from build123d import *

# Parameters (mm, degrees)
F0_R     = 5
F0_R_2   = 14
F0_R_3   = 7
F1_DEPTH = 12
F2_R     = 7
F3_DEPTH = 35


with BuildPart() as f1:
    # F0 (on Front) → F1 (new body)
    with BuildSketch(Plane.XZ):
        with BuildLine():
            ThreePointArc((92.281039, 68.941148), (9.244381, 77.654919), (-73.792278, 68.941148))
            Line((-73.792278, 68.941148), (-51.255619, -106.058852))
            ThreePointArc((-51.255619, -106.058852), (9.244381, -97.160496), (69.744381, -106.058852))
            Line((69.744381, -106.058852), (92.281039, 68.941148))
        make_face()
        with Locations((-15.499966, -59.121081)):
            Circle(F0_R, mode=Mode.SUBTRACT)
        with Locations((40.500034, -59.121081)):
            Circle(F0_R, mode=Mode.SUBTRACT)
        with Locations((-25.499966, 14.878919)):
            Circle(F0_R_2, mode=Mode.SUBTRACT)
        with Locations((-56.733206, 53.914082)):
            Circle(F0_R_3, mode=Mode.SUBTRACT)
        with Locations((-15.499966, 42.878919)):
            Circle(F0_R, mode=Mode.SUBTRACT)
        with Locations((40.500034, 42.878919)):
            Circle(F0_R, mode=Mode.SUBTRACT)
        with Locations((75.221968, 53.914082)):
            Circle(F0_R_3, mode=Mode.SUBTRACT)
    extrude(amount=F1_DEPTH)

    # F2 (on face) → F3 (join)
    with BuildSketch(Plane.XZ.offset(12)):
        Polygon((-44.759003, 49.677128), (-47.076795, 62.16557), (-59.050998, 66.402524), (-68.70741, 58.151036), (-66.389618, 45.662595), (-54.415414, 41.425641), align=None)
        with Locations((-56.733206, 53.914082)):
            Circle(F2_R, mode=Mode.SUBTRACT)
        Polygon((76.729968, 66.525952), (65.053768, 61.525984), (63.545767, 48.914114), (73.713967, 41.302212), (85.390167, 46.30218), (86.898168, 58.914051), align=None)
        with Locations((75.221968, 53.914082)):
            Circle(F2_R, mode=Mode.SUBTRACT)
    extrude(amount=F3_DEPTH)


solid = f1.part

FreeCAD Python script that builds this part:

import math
import FreeCAD as App
import Part
import Sketcher
from FreeCAD import Vector
Q = App.Units.Quantity

doc = App.newDocument("Part")
params = doc.addObject("Spreadsheet::Sheet", "Params")
for row, (alias, value) in enumerate([
    ("sketch1_diameter", "10 mm"),
    ("sketch1_diameter2", "28 mm"),
    ("sketch1_diameter3", "14 mm"),
    ("pad1_length", "12 mm"),
    ("sketch2_diameter", "14 mm"),
    ("pad2_length", "35 mm"),
], start=1):
    params.set(f"A{row}", alias)
    params.set(f"B{row}", "=" + value)
    params.setAlias(f"B{row}", alias)

body = doc.addObject("PartDesign::Body", "Body")

# Sketch on XZ plane
sketch1 = body.newObject("Sketcher::SketchObject", "Sketch")
sketch1.AttachmentSupport = (doc.getObject("XZ_Plane"), [""])
sketch1.MapMode = "FlatFace"
sketch1.addGeometry(Part.ArcOfCircle(Part.Circle(Vector(9.244381, -322.345061, 0), Vector(0, 0, 1), 399.99998), math.radians(78.018746), math.radians(101.981254)), False)
sketch1.addGeometry(Part.LineSegment(Vector(-73.792278, 68.941148, 0), Vector(-51.255619, -106.058852, 0)), False)
sketch1.addGeometry(Part.ArcOfCircle(Part.Circle(Vector(9.244381, -307.279688, 0), Vector(0, 0, 1), 210.119192), math.radians(73.265823), math.radians(106.734177)), False)
sketch1.addGeometry(Part.LineSegment(Vector(69.744381, -106.058852, 0), Vector(92.281039, 68.941148, 0)), False)
sketch1.addGeometry(Part.Circle(Vector(-15.499966, -59.121081, 0), Vector(0, 0, 1), 5), False)
sketch1.addGeometry(Part.Circle(Vector(40.500034, -59.121081, 0), Vector(0, 0, 1), 5), False)
sketch1.addGeometry(Part.Circle(Vector(-25.499966, 14.878919, 0), Vector(0, 0, 1), 14), False)
sketch1.addGeometry(Part.Circle(Vector(-56.733206, 53.914082, 0), Vector(0, 0, 1), 7), False)
sketch1.addGeometry(Part.Circle(Vector(-15.499966, 42.878919, 0), Vector(0, 0, 1), 5), False)
sketch1.addGeometry(Part.Circle(Vector(40.500034, 42.878919, 0), Vector(0, 0, 1), 5), False)
sketch1.addGeometry(Part.Circle(Vector(75.221968, 53.914082, 0), Vector(0, 0, 1), 7), False)
sketch1.addConstraint(Sketcher.Constraint("Coincident", 0, 2, 1, 1))
sketch1.addConstraint(Sketcher.Constraint("Coincident", 1, 2, 2, 2))
sketch1.addConstraint(Sketcher.Constraint("Coincident", 2, 1, 3, 1))
sketch1.addConstraint(Sketcher.Constraint("Coincident", 3, 2, 0, 1))
sketch1.addConstraint(Sketcher.Constraint("Equal", 4, 5))
sketch1.addConstraint(Sketcher.Constraint("Equal", 5, 8))
sketch1.addConstraint(Sketcher.Constraint("Equal", 8, 9))
sketch1.addConstraint(Sketcher.Constraint("Equal", 7, 10))
sketch1.addConstraint(Sketcher.Constraint("Horizontal", 4, 3, 5, 3))
sketch1.addConstraint(Sketcher.Constraint("Horizontal", 8, 3, 9, 3))
sketch1.addConstraint(Sketcher.Constraint("Horizontal", 7, 3, 10, 3))
sketch1.addConstraint(Sketcher.Constraint("Horizontal", 1, 2, 2, 1))
sketch1.addConstraint(Sketcher.Constraint("Horizontal", 0, 2, 3, 2))
sketch1.addConstraint(Sketcher.Constraint("Vertical", 0, 3, 2, 3))
sketch1.addConstraint(Sketcher.Constraint("Vertical", 4, 3, 8, 3))
sketch1.addConstraint(Sketcher.Constraint("Vertical", 5, 3, 9, 3))
sketch1.addConstraint(Sketcher.Constraint("Diameter", 4, Q("10 mm")))
sketch1.addConstraint(Sketcher.Constraint("Diameter", 6, Q("28 mm")))
sketch1.addConstraint(Sketcher.Constraint("Diameter", 7, Q("14 mm")))
sketch1.addConstraint(Sketcher.Constraint("DistanceX", 4, 3, 5, 3, Q("56 mm")))
sketch1.addConstraint(Sketcher.Constraint("DistanceX", 6, 3, 4, 3, Q("10 mm")))
sketch1.addConstraint(Sketcher.Constraint("DistanceY", 4, 3, 6, 3, Q("74 mm")))
sketch1.addConstraint(Sketcher.Constraint("DistanceY", 6, 3, 8, 3, Q("28 mm")))
sketch1.addConstraint(Sketcher.Constraint("DistanceX", 1, 2, 2, 1, Q("121 mm")))
sketch1.addConstraint(Sketcher.Constraint("Radius", 0, Q("399.99998 mm")))
sketch1.addConstraint(Sketcher.Constraint("Radius", 2, Q("210.119192 mm")))
sketch1.addConstraint(Sketcher.Constraint("Distance", 1, Q("176.445178 mm")))
sketch1.addConstraint(Sketcher.Constraint("DistanceX", -1, 1, 0, 3, Q("9.244381 mm")))
sketch1.addConstraint(Sketcher.Constraint("DistanceY", 0, 3, -1, 1, Q("322.345061 mm")))
sketch1.addConstraint(Sketcher.Constraint("DistanceY", 4, 3, -1, 1, Q("59.121081 mm")))
sketch1.addConstraint(Sketcher.Constraint("DistanceX", -1, 1, 10, 3, Q("75.221968 mm")))
sketch1.addConstraint(Sketcher.Constraint("DistanceY", 1, 2, -1, 1, Q("106.058852 mm")))
sketch1.addConstraint(Sketcher.Constraint("DistanceX", 7, 3, 6, 3, Q("31.23324 mm")))
sketch1.addConstraint(Sketcher.Constraint("DistanceY", 2, 3, 7, 3, Q("361.19377 mm")))
sketch1.addConstraint(Sketcher.Constraint("DistanceX", 4, 3, -1, 1, Q("15.499966 mm")))
sketch1.setExpression("Constraints[16]", "Params.sketch1_diameter")
sketch1.setExpression("Constraints[17]", "Params.sketch1_diameter2")
sketch1.setExpression("Constraints[18]", "Params.sketch1_diameter3")
pad1 = body.newObject("PartDesign::Pad", "Pad")
pad1.Profile = sketch1
pad1.setExpression("Length", "Params.pad1_length")

# Sketch on XZ plane
sketch2 = body.newObject("Sketcher::SketchObject", "Sketch001")
sketch2.AttachmentSupport = (doc.getObject("XZ_Plane"), [""])
sketch2.MapMode = "FlatFace"
sketch2.AttachmentOffset = App.Placement(Vector(0, 0, 12), App.Rotation())
sketch2.addGeometry(Part.LineSegment(Vector(-44.759003, 49.677128, 0), Vector(-47.076795, 62.16557, 0)), False)
sketch2.addGeometry(Part.LineSegment(Vector(-47.076795, 62.16557, 0), Vector(-59.050998, 66.402524, 0)), False)
sketch2.addGeometry(Part.LineSegment(Vector(-59.050998, 66.402524, 0), Vector(-68.70741, 58.151036, 0)), False)
sketch2.addGeometry(Part.LineSegment(Vector(-68.70741, 58.151036, 0), Vector(-66.389618, 45.662595, 0)), False)
sketch2.addGeometry(Part.LineSegment(Vector(-66.389618, 45.662595, 0), Vector(-54.415414, 41.425641, 0)), False)
sketch2.addGeometry(Part.LineSegment(Vector(-54.415414, 41.425641, 0), Vector(-44.759003, 49.677128, 0)), False)
sketch2.addGeometry(Part.Circle(Vector(-56.733206, 53.914082, 0), Vector(0, 0, 1), 7), False)
sketch2.addGeometry(Part.LineSegment(Vector(76.729968, 66.525952, 0), Vector(65.053768, 61.525984, 0)), False)
sketch2.addGeometry(Part.LineSegment(Vector(65.053768, 61.525984, 0), Vector(63.545767, 48.914114, 0)), False)
sketch2.addGeometry(Part.LineSegment(Vector(63.545767, 48.914114, 0), Vector(73.713967, 41.302212, 0)), False)
sketch2.addGeometry(Part.LineSegment(Vector(73.713967, 41.302212, 0), Vector(85.390167, 46.30218, 0)), False)
sketch2.addGeometry(Part.LineSegment(Vector(85.390167, 46.30218, 0), Vector(86.898168, 58.914051, 0)), False)
sketch2.addGeometry(Part.LineSegment(Vector(86.898168, 58.914051, 0), Vector(76.729968, 66.525952, 0)), False)
sketch2.addGeometry(Part.Circle(Vector(75.221968, 53.914082, 0), Vector(0, 0, 1), 7), False)
sketch2.addConstraint(Sketcher.Constraint("Coincident", 0, 2, 1, 1))
sketch2.addConstraint(Sketcher.Constraint("Coincident", 1, 2, 2, 1))
sketch2.addConstraint(Sketcher.Constraint("Coincident", 2, 2, 3, 1))
sketch2.addConstraint(Sketcher.Constraint("Coincident", 3, 2, 4, 1))
sketch2.addConstraint(Sketcher.Constraint("Coincident", 4, 2, 5, 1))
sketch2.addConstraint(Sketcher.Constraint("Coincident", 5, 2, 0, 1))
sketch2.addConstraint(Sketcher.Constraint("Coincident", 7, 2, 8, 1))
sketch2.addConstraint(Sketcher.Constraint("Coincident", 8, 2, 9, 1))
sketch2.addConstraint(Sketcher.Constraint("Coincident", 9, 2, 10, 1))
sketch2.addConstraint(Sketcher.Constraint("Coincident", 10, 2, 11, 1))
sketch2.addConstraint(Sketcher.Constraint("Coincident", 11, 2, 12, 1))
sketch2.addConstraint(Sketcher.Constraint("Coincident", 12, 2, 7, 1))
sketch2.addConstraint(Sketcher.Constraint("Equal", 6, 13))
sketch2.addConstraint(Sketcher.Constraint("Parallel", 0, 3))
sketch2.addConstraint(Sketcher.Constraint("Parallel", 1, 4))
sketch2.addConstraint(Sketcher.Constraint("Parallel", 2, 5))
sketch2.addConstraint(Sketcher.Constraint("Parallel", 7, 10))
sketch2.addConstraint(Sketcher.Constraint("Parallel", 8, 11))
sketch2.addConstraint(Sketcher.Constraint("Parallel", 9, 12))
sketch2.addConstraint(Sketcher.Constraint("Horizontal", 6, 3, 13, 3))
sketch2.addConstraint(Sketcher.Constraint("Equal", 0, 1))
sketch2.addConstraint(Sketcher.Constraint("Equal", 1, 2))
sketch2.addConstraint(Sketcher.Constraint("Equal", 2, 3))
sketch2.addConstraint(Sketcher.Constraint("Equal", 5, 7))
sketch2.addConstraint(Sketcher.Constraint("Equal", 7, 8))
sketch2.addConstraint(Sketcher.Constraint("Equal", 8, 9))
sketch2.addConstraint(Sketcher.Constraint("Equal", 9, 10))
sketch2.addConstraint(Sketcher.Constraint("Diameter", 6, Q("14 mm")))
sketch2.addConstraint(Sketcher.Constraint("DistanceX", 8, 2, 7, 2, Q("1.508001 mm")))
sketch2.addConstraint(Sketcher.Constraint("DistanceX", 9, 2, 13, 3, Q("1.508001 mm")))
sketch2.addConstraint(Sketcher.Constraint("DistanceX", 13, 3, 12, 2, Q("1.508 mm")))
sketch2.addConstraint(Sketcher.Constraint("DistanceX", 7, 2, 13, 3, Q("10.1682 mm")))
sketch2.addConstraint(Sketcher.Constraint("DistanceY", 11, 2, 12, 2, Q("7.611901 mm")))
sketch2.addConstraint(Sketcher.Constraint("DistanceX", -1, 1, 13, 3, Q("75.221968 mm")))
sketch2.addConstraint(Sketcher.Constraint("DistanceY", -1, 1, 0, 2, Q("62.16557 mm")))
sketch2.addConstraint(Sketcher.Constraint("DistanceX", 2, 2, -1, 1, Q("68.70741 mm")))
sketch2.addConstraint(Sketcher.Constraint("DistanceX", 3, 2, -1, 1, Q("66.389618 mm")))
sketch2.addConstraint(Sketcher.Constraint("DistanceY", -1, 1, 4, 2, Q("41.425641 mm")))
sketch2.addConstraint(Sketcher.Constraint("DistanceY", -1, 1, 9, 2, Q("41.302212 mm")))
sketch2.addConstraint(Sketcher.Constraint("DistanceX", 6, 3, 0, 2, Q("9.656411 mm")))
sketch2.addConstraint(Sketcher.Constraint("DistanceY", 6, 3, 0, 2, Q("8.251488 mm")))
sketch2.addConstraint(Sketcher.Constraint("DistanceX", 1, 2, 6, 3, Q("2.317792 mm")))
sketch2.setExpression("Constraints[27]", "Params.sketch2_diameter")
pad2 = body.newObject("PartDesign::Pad", "Pad001")
pad2.Profile = sketch2
pad2.setExpression("Length", "Params.pad2_length")

doc.recompute()
